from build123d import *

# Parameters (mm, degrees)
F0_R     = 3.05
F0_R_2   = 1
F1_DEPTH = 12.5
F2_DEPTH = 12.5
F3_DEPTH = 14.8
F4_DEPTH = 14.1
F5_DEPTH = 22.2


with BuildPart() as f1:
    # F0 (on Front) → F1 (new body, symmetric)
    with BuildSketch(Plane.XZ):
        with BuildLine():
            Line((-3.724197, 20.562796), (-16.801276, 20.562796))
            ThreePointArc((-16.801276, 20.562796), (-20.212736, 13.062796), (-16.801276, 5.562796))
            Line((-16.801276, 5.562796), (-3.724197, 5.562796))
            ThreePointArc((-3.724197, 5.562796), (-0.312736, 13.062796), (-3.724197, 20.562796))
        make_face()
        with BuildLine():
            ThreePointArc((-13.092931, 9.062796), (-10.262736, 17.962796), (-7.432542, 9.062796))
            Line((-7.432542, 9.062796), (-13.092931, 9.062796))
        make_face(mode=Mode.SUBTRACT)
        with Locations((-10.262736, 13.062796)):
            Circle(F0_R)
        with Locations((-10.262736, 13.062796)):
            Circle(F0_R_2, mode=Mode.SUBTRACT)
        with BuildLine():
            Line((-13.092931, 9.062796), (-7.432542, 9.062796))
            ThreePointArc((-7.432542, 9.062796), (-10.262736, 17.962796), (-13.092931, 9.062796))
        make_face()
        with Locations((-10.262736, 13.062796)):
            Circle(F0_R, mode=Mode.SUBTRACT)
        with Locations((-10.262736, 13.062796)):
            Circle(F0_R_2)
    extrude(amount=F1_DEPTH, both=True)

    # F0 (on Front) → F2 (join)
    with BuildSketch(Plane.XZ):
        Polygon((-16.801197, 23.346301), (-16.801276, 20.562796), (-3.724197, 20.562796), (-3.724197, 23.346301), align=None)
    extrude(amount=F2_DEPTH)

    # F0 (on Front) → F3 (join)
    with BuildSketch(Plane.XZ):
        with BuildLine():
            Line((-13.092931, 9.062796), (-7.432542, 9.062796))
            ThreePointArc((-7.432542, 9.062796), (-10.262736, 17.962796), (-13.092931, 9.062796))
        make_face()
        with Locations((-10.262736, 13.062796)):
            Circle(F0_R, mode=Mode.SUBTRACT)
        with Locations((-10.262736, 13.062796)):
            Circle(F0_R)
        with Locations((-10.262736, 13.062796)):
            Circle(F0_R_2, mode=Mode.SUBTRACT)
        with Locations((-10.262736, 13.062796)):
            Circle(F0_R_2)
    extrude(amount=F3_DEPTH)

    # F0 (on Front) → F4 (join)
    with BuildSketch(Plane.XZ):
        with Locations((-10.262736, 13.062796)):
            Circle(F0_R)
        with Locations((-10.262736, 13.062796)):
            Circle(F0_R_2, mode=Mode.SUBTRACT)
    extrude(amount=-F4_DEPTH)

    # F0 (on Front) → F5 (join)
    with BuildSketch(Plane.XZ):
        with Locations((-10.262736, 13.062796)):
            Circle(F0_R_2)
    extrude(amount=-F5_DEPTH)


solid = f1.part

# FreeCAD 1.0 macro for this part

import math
import FreeCAD as App
import Part
import Sketcher
Q = App.Units.Quantity


def add_polygon(sketch, points):
    """Adds a closed chain of lines whose ends are joined by coincident constraints."""
    first, n = sketch.GeometryCount, len(points)
    for a, b in zip(points, points[1:] + points[:1]):
        sketch.addGeometry(Part.LineSegment(App.Vector(*a, 0), App.Vector(*b, 0)), False)
    for i in range(n):
        sketch.addConstraint(Sketcher.Constraint("Coincident", first + i, 2, first + (i + 1) % n, 1))

doc = App.newDocument("Part")
body = doc.addObject("PartDesign::Body", "Body")
body.AllowCompound = True

# Sketch on XZ plane
sketch1 = doc.addObject("Sketcher::SketchObject", "Sketch")
body.addObject(sketch1)
sketch1.AttachmentSupport = (doc.XZ_Plane, [""])
sketch1.MapMode = "FlatFace"
sketch1.addGeometry(Part.LineSegment(App.Vector(-3.7, 20.6, 0), App.Vector(-16.8, 20.6, 0)), False)
sketch1.addGeometry(Part.ArcOfCircle(Part.Circle(App.Vector(-10.3, 13.1, 0), App.Vector(0, 0, 1), 10), math.radians(131), math.radians(229)), False)
sketch1.addGeometry(Part.LineSegment(App.Vector(-16.8, 5.6, 0), App.Vector(-3.7, 5.6, 0)), False)
sketch1.addGeometry(Part.ArcOfCircle(Part.Circle(App.Vector(-10.3, 13.1, 0), App.Vector(0, 0, 1), 9.9), math.radians(-49), math.radians(49)), False)
sketch1.addGeometry(Part.Circle(App.Vector(-10.3, 13.1, 0), App.Vector(0, 0, 1), 3), False)
sketch1.addGeometry(Part.Circle(App.Vector(-10.3, 13.1, 0), App.Vector(0, 0, 1), 1), False)
sketch1.addConstraint(Sketcher.Constraint("Coincident", 0, 2, 1, 1))
sketch1.addConstraint(Sketcher.Constraint("Coincident", 1, 2, 2, 1))
sketch1.addConstraint(Sketcher.Constraint("Coincident", 2, 2, 3, 1))
sketch1.addConstraint(Sketcher.Constraint("Coincident", 3, 2, 0, 1))
sketch1.addConstraint(Sketcher.Constraint("Horizontal", 0))
sketch1.addConstraint(Sketcher.Constraint("Horizontal", 2))
sketch1.addConstraint(Sketcher.Constraint("Coincident", 3, 3, 1, 3))
sketch1.addConstraint(Sketcher.Constraint("Coincident", 4, 3, 1, 3))
sketch1.addConstraint(Sketcher.Constraint("Coincident", 5, 3, 1, 3))
sketch1.addConstraint(Sketcher.Constraint("Equal", 1, 3))
sketch1.addConstraint(Sketcher.Constraint("Vertical", 0, 2, 1, 2))
sketch1.addConstraint(Sketcher.Constraint("Diameter", 5, Q("2 mm")))
sketch1.addConstraint(Sketcher.Constraint("Diameter", 4, Q("6.1 mm")))
sketch1.addConstraint(Sketcher.Constraint("Radius", 1, Q("9.950001 mm")))
sketch1.addConstraint(Sketcher.Constraint("DistanceY", 1, 2, 0, 2, Q("15 mm")))
sketch1.addConstraint(Sketcher.Constraint("DistanceX", 1, 3, -1, 1, Q("10.262735 mm")))
sketch1.addConstraint(Sketcher.Constraint("DistanceY", -1, 1, 1, 3, Q("13.062796 mm")))
pad1 = doc.addObject("PartDesign::Pad", "Pad")
body.addObject(pad1)
pad1.Profile = sketch1
pad1.Length = 25
pad1.Midplane = True

# Sketch on XZ plane
sketch2 = doc.addObject("Sketcher::SketchObject", "Sketch001")
body.addObject(sketch2)
sketch2.AttachmentSupport = (doc.XZ_Plane, [""])
sketch2.MapMode = "FlatFace"
add_polygon(sketch2, [(-16.8, 23.3), (-16.8, 20.6), (-3.7, 20.6), (-3.7, 23.3)])  # lines 0-3
sketch2.addConstraint(Sketcher.Constraint("Horizontal", 1))
sketch2.addConstraint(Sketcher.Constraint("Vertical", 2))
sketch2.addConstraint(Sketcher.Constraint("Horizontal", 3))
sketch2.addConstraint(Sketcher.Constraint("DistanceX", 3, 2, 3, 1, Q("13.077 mm")))
sketch2.addConstraint(Sketcher.Constraint("DistanceX", 1, 1, 1, 2, Q("13.077079 mm")))
sketch2.addConstraint(Sketcher.Constraint("DistanceY", -1, 1, 2, 2, Q("23.346301 mm")))
sketch2.addConstraint(Sketcher.Constraint("DistanceY", 2, 1, 2, 2, Q("2.783505 mm")))
sketch2.addConstraint(Sketcher.Constraint("DistanceX", 0, 2, -1, 1, Q("16.801276 mm")))
pad2 = doc.addObject("PartDesign::Pad", "Pad001")
body.addObject(pad2)
pad2.Profile = sketch2
pad2.Length = 12.5

# Sketch on XZ plane
sketch3 = doc.addObject("Sketcher::SketchObject", "Sketch002")
body.addObject(sketch3)
sketch3.AttachmentSupport = (doc.XZ_Plane, [""])
sketch3.MapMode = "FlatFace"
sketch3.addGeometry(Part.LineSegment(App.Vector(-13.1, 9.1, 0), App.Vector(-7.4, 9.1, 0)), False)
sketch3.addGeometry(Part.ArcOfCircle(Part.Circle(App.Vector(-10.3, 13.1, 0), App.Vector(0, 0, 1), 4.9), math.radians(-55), math.radians(235)), False)
sketch3.addConstraint(Sketcher.Constraint("Coincident", 0, 1, 1, 2))
sketch3.addConstraint(Sketcher.Constraint("Coincident", 1, 1, 0, 2))
sketch3.addConstraint(Sketcher.Constraint("Horizontal", 0))
sketch3.addConstraint(Sketcher.Constraint("Radius", 1, Q("4.9 mm")))
sketch3.addConstraint(Sketcher.Constraint("DistanceY", 0, 1, 1, 3, Q("4 mm")))
sketch3.addConstraint(Sketcher.Constraint("DistanceX", 0, 1, -1, 1, Q("13.092931 mm")))
sketch3.addConstraint(Sketcher.Constraint("DistanceY", -1, 1, 1, 3, Q("13.062796 mm")))
pad3 = doc.addObject("PartDesign::Pad", "Pad002")
body.addObject(pad3)
pad3.Profile = sketch3
pad3.Length = 14.8

# Sketch on XZ plane
sketch4 = doc.addObject("Sketcher::SketchObject", "Sketch003")
body.addObject(sketch4)
sketch4.AttachmentSupport = (doc.XZ_Plane, [""])
sketch4.MapMode = "FlatFace"
sketch4.addGeometry(Part.Circle(App.Vector(-10.3, 13.1, 0), App.Vector(0, 0, 1), 3), False)
sketch4.addGeometry(Part.Circle(App.Vector(-10.3, 13.1, 0), App.Vector(0, 0, 1), 1), False)
sketch4.addConstraint(Sketcher.Constraint("Coincident", 1, 3, 0, 3))
sketch4.addConstraint(Sketcher.Constraint("Diameter", 1, Q("2 mm")))
sketch4.addConstraint(Sketcher.Constraint("Diameter", 0, Q("6.1 mm")))
sketch4.addConstraint(Sketcher.Constraint("DistanceX", 0, 3, -1, 1, Q("10.262736 mm")))
sketch4.addConstraint(Sketcher.Constraint("DistanceY", -1, 1, 0, 3, Q("13.062796 mm")))
pad4 = doc.addObject("PartDesign::Pad", "Pad003")
body.addObject(pad4)
pad4.Profile = sketch4
pad4.Length = 14.1
pad4.Reversed = True

# Sketch on XZ plane
sketch5 = doc.addObject("Sketcher::SketchObject", "Sketch004")
body.addObject(sketch5)
sketch5.AttachmentSupport = (doc.XZ_Plane, [""])
sketch5.MapMode = "FlatFace"
sketch5.addGeometry(Part.Circle(App.Vector(-10.3, 13.1, 0), App.Vector(0, 0, 1), 1), False)
sketch5.addConstraint(Sketcher.Constraint("Diameter", 0, Q("2 mm")))
sketch5.addConstraint(Sketcher.Constraint("DistanceX", 0, 3, -1, 1, Q("10.262736 mm")))
sketch5.addConstraint(Sketcher.Constraint("DistanceY", -1, 1, 0, 3, Q("13.062796 mm")))
pad5 = doc.addObject("PartDesign::Pad", "Pad004")
body.addObject(pad5)
pad5.Profile = sketch5
pad5.Length = 22.2
pad5.Reversed = True

doc.recompute()
